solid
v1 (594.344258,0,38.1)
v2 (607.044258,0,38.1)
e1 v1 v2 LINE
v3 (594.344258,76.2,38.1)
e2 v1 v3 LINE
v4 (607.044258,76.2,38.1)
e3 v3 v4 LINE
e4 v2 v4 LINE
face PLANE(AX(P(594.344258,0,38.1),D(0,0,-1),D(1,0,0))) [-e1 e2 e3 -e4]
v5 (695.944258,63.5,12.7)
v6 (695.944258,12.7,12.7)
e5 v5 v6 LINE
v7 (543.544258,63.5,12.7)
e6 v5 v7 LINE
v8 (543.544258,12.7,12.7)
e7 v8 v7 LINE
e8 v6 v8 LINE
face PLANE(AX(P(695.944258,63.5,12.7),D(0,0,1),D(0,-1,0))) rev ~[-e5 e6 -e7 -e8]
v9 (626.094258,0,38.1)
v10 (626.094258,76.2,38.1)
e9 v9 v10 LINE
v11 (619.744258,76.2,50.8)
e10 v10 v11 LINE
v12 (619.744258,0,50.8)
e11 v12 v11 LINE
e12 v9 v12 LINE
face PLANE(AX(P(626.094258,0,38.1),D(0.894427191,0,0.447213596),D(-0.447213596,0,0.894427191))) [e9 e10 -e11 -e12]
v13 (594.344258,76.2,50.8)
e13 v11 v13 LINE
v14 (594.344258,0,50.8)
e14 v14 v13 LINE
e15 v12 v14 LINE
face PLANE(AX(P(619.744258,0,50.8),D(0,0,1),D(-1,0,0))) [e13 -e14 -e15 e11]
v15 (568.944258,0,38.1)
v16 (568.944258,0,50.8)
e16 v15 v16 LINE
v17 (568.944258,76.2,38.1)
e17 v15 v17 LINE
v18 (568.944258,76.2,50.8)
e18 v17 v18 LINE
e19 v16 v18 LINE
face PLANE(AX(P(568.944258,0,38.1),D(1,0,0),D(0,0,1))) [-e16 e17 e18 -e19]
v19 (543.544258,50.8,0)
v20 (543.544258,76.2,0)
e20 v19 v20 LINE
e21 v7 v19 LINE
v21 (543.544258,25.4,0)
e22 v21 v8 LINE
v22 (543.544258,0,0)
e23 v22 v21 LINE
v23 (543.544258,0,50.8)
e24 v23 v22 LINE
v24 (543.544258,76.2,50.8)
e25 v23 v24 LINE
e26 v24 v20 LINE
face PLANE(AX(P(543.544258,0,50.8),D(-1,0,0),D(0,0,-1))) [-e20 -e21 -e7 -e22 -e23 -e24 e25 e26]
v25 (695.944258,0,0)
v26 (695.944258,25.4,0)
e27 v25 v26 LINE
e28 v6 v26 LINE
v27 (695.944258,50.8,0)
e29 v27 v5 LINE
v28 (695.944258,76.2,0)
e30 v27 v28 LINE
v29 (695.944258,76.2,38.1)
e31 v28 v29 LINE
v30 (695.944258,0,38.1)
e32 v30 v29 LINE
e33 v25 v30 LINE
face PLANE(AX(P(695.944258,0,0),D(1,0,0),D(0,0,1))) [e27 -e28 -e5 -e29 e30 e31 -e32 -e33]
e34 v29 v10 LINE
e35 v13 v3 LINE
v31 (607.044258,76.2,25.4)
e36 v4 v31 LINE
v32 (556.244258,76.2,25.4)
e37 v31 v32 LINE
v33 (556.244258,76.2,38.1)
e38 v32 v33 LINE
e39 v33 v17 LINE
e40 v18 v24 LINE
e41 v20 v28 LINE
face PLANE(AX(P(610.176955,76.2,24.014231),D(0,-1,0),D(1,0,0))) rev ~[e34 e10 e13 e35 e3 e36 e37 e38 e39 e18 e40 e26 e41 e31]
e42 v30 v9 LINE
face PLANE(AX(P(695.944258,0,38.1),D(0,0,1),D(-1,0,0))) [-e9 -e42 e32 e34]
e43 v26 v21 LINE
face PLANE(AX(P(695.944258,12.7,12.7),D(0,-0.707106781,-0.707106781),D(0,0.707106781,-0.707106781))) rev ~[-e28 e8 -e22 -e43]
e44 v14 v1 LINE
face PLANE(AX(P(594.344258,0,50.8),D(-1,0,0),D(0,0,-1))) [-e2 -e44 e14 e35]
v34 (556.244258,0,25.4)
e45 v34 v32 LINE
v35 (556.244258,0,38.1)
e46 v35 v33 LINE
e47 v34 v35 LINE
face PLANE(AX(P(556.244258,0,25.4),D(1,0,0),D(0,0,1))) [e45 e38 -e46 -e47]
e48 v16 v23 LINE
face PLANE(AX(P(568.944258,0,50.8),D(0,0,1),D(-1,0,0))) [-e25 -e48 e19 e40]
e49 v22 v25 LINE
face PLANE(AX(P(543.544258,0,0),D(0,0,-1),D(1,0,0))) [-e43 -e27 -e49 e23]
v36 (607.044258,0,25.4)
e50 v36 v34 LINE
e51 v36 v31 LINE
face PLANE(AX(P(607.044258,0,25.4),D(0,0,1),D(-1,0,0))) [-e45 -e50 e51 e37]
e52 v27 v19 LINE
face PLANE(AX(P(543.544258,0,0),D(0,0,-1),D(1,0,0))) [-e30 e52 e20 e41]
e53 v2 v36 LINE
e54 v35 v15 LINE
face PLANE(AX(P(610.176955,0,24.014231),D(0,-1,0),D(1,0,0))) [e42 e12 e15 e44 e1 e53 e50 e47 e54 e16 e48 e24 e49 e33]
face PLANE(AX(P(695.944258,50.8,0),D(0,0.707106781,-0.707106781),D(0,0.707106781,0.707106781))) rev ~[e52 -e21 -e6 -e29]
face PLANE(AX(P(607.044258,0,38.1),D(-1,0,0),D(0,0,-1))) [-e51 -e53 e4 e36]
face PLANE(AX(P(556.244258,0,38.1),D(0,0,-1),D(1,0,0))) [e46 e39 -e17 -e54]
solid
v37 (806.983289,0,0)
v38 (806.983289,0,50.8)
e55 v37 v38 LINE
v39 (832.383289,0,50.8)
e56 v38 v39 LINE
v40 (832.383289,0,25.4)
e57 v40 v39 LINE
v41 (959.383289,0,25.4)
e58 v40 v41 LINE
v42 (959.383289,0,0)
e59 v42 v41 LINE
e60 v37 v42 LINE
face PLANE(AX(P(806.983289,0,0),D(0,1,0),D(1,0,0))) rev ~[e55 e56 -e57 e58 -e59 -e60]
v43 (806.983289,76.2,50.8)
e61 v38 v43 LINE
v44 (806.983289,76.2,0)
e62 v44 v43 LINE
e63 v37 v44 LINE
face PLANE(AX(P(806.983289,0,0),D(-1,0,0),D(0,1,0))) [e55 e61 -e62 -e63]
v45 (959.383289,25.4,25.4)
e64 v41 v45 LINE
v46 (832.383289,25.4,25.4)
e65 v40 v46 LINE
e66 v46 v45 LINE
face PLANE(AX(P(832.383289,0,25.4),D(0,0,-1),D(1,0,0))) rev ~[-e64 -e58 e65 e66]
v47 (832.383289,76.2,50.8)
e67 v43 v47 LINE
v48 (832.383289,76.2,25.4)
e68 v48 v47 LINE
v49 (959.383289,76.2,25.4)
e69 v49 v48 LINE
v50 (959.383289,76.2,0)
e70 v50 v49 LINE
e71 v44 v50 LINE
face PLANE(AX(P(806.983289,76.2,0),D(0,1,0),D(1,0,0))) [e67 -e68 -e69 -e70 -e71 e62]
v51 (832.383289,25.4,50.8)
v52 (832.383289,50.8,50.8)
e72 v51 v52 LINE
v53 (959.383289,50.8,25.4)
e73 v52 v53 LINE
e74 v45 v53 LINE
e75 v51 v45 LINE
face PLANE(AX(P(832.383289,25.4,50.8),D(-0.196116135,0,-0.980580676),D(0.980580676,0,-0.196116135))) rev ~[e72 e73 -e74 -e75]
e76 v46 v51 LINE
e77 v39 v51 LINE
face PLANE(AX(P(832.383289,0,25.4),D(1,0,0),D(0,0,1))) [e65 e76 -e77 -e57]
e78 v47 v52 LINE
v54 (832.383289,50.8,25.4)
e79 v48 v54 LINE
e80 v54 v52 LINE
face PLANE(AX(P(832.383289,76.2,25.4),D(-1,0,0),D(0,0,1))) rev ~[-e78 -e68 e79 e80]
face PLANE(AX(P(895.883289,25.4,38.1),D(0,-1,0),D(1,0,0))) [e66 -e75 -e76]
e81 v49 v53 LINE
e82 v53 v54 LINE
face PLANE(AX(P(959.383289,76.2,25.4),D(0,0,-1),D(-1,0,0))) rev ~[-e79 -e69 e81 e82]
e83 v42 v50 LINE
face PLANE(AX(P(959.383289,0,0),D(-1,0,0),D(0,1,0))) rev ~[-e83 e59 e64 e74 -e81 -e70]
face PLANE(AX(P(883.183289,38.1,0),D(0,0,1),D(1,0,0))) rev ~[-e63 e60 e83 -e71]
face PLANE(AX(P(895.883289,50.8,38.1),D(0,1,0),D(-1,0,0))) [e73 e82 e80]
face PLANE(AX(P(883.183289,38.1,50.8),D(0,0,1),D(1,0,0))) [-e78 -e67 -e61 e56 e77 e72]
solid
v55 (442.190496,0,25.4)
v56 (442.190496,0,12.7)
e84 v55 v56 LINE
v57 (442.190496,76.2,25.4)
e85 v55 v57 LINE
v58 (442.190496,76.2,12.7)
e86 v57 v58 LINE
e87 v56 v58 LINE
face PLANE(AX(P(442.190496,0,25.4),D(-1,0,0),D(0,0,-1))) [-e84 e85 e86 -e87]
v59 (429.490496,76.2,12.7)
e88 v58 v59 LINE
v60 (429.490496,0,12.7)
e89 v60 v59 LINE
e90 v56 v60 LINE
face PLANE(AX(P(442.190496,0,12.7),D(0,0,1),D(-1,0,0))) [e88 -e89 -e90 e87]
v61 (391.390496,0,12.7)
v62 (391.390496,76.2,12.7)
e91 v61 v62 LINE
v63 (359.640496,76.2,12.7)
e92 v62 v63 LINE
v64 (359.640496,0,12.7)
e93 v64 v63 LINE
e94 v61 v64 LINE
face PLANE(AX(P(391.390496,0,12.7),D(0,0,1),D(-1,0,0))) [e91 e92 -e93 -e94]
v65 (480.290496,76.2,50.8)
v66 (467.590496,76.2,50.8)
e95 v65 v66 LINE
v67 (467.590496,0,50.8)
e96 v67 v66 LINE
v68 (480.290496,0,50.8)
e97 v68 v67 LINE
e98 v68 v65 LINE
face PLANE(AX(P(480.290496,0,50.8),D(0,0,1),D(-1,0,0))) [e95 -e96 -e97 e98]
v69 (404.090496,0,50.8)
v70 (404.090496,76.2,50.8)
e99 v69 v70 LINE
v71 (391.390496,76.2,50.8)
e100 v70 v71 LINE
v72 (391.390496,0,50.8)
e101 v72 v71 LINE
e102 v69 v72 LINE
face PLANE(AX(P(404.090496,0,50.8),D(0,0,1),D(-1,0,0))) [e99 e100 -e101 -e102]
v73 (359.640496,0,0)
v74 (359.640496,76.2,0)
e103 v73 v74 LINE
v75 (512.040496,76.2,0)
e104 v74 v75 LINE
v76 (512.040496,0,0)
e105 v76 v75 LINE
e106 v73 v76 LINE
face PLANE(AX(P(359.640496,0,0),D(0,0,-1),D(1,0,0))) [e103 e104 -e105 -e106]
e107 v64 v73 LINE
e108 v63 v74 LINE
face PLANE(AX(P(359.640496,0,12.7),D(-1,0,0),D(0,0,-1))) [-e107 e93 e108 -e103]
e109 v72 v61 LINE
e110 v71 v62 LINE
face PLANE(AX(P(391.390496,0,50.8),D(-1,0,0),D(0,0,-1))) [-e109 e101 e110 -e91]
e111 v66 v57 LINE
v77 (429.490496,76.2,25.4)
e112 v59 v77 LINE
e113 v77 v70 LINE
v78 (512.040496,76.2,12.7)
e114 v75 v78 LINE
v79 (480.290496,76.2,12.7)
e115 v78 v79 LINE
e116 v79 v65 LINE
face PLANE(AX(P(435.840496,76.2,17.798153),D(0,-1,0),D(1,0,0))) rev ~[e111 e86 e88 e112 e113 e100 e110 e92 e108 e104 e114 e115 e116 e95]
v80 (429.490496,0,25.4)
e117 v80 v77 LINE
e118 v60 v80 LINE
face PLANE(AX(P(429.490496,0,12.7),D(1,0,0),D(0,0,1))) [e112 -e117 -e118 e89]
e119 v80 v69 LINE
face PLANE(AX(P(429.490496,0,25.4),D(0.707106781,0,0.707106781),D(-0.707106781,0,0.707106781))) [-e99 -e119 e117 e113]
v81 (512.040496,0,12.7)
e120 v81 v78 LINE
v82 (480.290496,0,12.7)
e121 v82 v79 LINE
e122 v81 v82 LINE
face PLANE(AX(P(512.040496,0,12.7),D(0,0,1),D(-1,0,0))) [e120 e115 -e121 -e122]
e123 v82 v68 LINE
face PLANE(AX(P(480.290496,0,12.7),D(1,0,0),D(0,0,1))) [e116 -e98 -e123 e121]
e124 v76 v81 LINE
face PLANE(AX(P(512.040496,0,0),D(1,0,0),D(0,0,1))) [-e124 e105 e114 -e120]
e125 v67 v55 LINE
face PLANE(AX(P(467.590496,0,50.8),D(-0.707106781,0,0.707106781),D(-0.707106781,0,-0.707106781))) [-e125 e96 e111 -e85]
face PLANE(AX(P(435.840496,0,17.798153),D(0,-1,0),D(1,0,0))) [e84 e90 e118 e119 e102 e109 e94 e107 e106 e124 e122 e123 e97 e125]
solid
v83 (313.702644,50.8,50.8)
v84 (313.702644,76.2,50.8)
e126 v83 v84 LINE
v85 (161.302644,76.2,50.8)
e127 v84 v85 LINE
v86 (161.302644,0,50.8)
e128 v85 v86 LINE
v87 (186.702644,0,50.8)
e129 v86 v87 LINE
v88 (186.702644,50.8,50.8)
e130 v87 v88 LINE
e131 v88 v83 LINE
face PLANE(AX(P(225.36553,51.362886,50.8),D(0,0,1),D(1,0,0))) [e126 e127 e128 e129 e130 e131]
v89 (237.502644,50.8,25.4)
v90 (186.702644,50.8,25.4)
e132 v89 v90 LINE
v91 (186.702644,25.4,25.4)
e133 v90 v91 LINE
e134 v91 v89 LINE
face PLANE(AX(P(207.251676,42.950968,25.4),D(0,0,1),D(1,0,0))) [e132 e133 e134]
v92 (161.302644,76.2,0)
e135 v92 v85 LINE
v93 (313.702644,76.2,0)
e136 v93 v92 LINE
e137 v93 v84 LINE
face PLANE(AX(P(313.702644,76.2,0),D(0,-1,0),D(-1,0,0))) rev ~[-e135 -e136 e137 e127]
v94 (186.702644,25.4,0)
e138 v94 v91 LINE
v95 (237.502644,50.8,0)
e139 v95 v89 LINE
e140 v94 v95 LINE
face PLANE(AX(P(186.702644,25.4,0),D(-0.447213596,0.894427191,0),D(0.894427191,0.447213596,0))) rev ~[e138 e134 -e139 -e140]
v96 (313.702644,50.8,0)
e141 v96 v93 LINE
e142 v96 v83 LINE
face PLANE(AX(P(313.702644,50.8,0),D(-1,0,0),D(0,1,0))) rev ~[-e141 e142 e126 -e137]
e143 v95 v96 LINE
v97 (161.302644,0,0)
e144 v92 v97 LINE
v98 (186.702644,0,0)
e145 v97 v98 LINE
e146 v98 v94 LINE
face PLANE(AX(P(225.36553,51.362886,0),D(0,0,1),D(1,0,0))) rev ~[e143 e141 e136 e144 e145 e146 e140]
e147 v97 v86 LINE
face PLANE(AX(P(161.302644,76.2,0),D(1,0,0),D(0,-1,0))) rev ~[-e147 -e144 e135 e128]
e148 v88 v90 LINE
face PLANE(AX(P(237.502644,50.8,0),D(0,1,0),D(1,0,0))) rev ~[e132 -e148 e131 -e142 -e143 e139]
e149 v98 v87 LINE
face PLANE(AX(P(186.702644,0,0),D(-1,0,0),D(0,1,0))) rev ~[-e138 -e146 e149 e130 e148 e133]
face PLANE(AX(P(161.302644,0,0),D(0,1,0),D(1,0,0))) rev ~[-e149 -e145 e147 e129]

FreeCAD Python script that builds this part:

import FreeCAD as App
import Part
import Sketcher

V = App.Vector
Q = App.Units.Quantity


def add_polygon(sketch, points):
    """Adds a closed chain of lines whose ends are joined by coincident constraints."""
    first, n = sketch.GeometryCount, len(points)
    for a, b in zip(points, points[1:] + points[:1]):
        sketch.addGeometry(Part.LineSegment(App.Vector(*a, 0), App.Vector(*b, 0)), False)
    for i in range(n):
        sketch.addConstraint(Sketcher.Constraint("Coincident", first + i, 2, first + (i + 1) % n, 1))

doc = App.newDocument("Part")
body = doc.addObject("PartDesign::Body", "Body")

# Sketch on XY plane
sketch1 = body.newObject("Sketcher::SketchObject", "Sketch")
sketch1.AttachmentSupport = (doc.getObject("XY_Plane"), [""])
sketch1.MapMode = "FlatFace"
add_polygon(sketch1, [(161, 76), (161, 0), (187, 0), (187, 25), (238, 51), (314, 51), (314, 76)])  # lines 0-6
sketch1.addConstraint([
    Sketcher.Constraint("Vertical", 0),
    Sketcher.Constraint("Horizontal", 1),
    Sketcher.Constraint("Vertical", 2),
    Sketcher.Constraint("Horizontal", 4),
    Sketcher.Constraint("Vertical", 5),
    Sketcher.Constraint("Horizontal", 6),
    Sketcher.Constraint("PointOnObject", 0, 2, -1),
    Sketcher.Constraint("Equal", 4, 0),
    Sketcher.Constraint("Equal", 1, 2),
    Sketcher.Constraint("Equal", 2, 5),
    Sketcher.Constraint("DistanceX", 1, 1, 1, 2, Q("1 in")),
    Sketcher.Constraint("DistanceX", 4, 1, 4, 2, Q("3 in")),
    Sketcher.Constraint("DistanceX", 6, 2, 6, 1, Q("6 in")),
    Sketcher.Constraint("DistanceX", -1, 1, 0, 2, 161.302644),
])
pad1 = body.newObject("PartDesign::Pad", "Pad")
pad1.Profile = sketch1
pad1.Length = Q("2 in")

# Sketch on XY plane
sketch2 = body.newObject("Sketcher::SketchObject", "Sketch001")
sketch2.AttachmentSupport = (doc.getObject("XY_Plane"), [""])
sketch2.MapMode = "FlatFace"
sketch2.AttachmentOffset = App.Placement(V(0, 0, 2 * 25.4), App.Rotation())
add_polygon(sketch2, [(187, 51), (187, 25), (238, 51)])  # lines 0-2
sketch2.addConstraint([
    Sketcher.Constraint("Vertical", 0),
    Sketcher.Constraint("Horizontal", 2),
    Sketcher.Constraint("DistanceX", 2, 2, 2, 1, Q("2 in")),
    Sketcher.Constraint("DistanceY", 0, 2, 0, 1, Q("1 in")),
    Sketcher.Constraint("DistanceY", -1, 1, 0, 2, Q("1 in")),
    Sketcher.Constraint("DistanceX", -1, 1, 0, 2, 186.702644),
])
pocket1 = body.newObject("PartDesign::Pocket", "Pocket")
pocket1.Profile = sketch2
pocket1.Length = Q("1 in")
body2 = doc.addObject("PartDesign::Body", "Body001")

# Sketch on XZ plane
sketch3 = body2.newObject("Sketcher::SketchObject", "Sketch002")
sketch3.AttachmentSupport = (doc.getObject("XZ_Plane001"), [""])
sketch3.MapMode = "FlatFace"
add_polygon(sketch3, [(360, 13), (360, 0), (512, 0), (512, 13), (480, 13), (480, 51), (468, 51), (442, 25), (442, 13), (429, 13), (429, 25), (404, 51), (391, 51), (391, 13)])  # lines 0-13
sketch3.addConstraint([
    Sketcher.Constraint("Vertical", 0),
    Sketcher.Constraint("Horizontal", 1),
    Sketcher.Constraint("Vertical", 2),
    Sketcher.Constraint("Horizontal", 3),
    Sketcher.Constraint("Vertical", 4),
    Sketcher.Constraint("Horizontal", 5),
    Sketcher.Constraint("Vertical", 7),
    Sketcher.Constraint("Horizontal", 8),
    Sketcher.Constraint("Vertical", 9),
    Sketcher.Constraint("Horizontal", 11),
    Sketcher.Constraint("Vertical", 12),
    Sketcher.Constraint("Horizontal", 13),
    Sketcher.Constraint("PointOnObject", 0, 2, -1),
    Sketcher.Constraint("Perpendicular", 6, 10),
    Sketcher.Constraint("Horizontal", 3, 2, 7, 2),
    Sketcher.Constraint("Horizontal", 6, 2, 9, 2),
    Sketcher.Constraint("Horizontal", 5, 2, 10, 2),
    Sketcher.Constraint("Horizontal", 8, 2, 12, 2),
    Sketcher.Constraint("Equal", 5, 8),
    Sketcher.Constraint("Equal", 8, 11),
    Sketcher.Constraint("Equal", 3, 13),
    Sketcher.Constraint("Equal", 11, 0),
    Sketcher.Constraint("Equal", 2, 7),
    Sketcher.Constraint("Equal", 6, 10),
    Sketcher.Constraint("DistanceX", 1, 1, 1, 2, Q("6 in")),
    Sketcher.Constraint("DistanceX", 5, 2, 5, 1, Q("0.5 in")),
    Sketcher.Constraint("DistanceY", 4, 1, 4, 2, Q("1.5 in")),
    Sketcher.Constraint("DistanceX", -1, 1, 0, 2, 359.640496),
])
pad2 = body2.newObject("PartDesign::Pad", "Pad001")
pad2.Profile = sketch3
pad2.Length = Q("3 in")
pad2.Reversed = True
body3 = doc.addObject("PartDesign::Body", "Body002")

# Sketch on XZ plane
sketch4 = body3.newObject("Sketcher::SketchObject", "Sketch003")
sketch4.AttachmentSupport = (doc.getObject("XZ_Plane002"), [""])
sketch4.MapMode = "FlatFace"
add_polygon(sketch4, [(544, 51), (544, 0), (696, 0), (696, 38), (626, 38), (620, 51), (594, 51), (594, 38), (607, 38), (607, 25), (556, 25), (556, 38), (569, 38), (569, 51)])  # lines 0-13
sketch4.addConstraint([
    Sketcher.Constraint("Vertical", 0),
    Sketcher.Constraint("Horizontal", 1),
    Sketcher.Constraint("Vertical", 2),
    Sketcher.Constraint("Horizontal", 3),
    Sketcher.Constraint("Horizontal", 5),
    Sketcher.Constraint("Vertical", 6),
    Sketcher.Constraint("Horizontal", 7),
    Sketcher.Constraint("Vertical", 8),
    Sketcher.Constraint("Horizontal", 9),
    Sketcher.Constraint("Vertical", 10),
    Sketcher.Constraint("Horizontal", 11),
    Sketcher.Constraint("Vertical", 12),
    Sketcher.Constraint("Horizontal", 13),
    Sketcher.Constraint("PointOnObject", 0, 2, -1),
    Sketcher.Constraint("Horizontal", 3, 2, 6, 2),
    Sketcher.Constraint("Horizontal", 7, 2, 10, 2),
    Sketcher.Constraint("Horizontal", 5, 2, 12, 2),
    Sketcher.Constraint("Equal", 7, 11),
    Sketcher.Constraint("Equal", 5, 13),
    Sketcher.Constraint("Equal", 9, 0),
    Sketcher.Constraint("Equal", 11, 6),
    Sketcher.Constraint("Equal", 6, 8),
    Sketcher.Constraint("DistanceX", 1, 1, 1, 2, Q("6 in")),
    Sketcher.Constraint("DistanceX", 5, 2, 5, 1, Q("1 in")),
    Sketcher.Constraint("DistanceX", 9, 2, 9, 1, Q("2 in")),
    Sketcher.Constraint("DistanceX", 7, 1, 7, 2, Q("0.5 in")),
    Sketcher.Constraint("DistanceX", 3, 2, 3, 1, Q("2.75 in")),
    Sketcher.Constraint("DistanceX", -1, 1, 0, 2, 543.544258),
])
pad3 = body3.newObject("PartDesign::Pad", "Pad002")
pad3.Profile = sketch4
pad3.Length = Q("3 in")
pad3.Reversed = True

# Sketch on YZ plane
sketch5 = body3.newObject("Sketcher::SketchObject", "Sketch004")
sketch5.AttachmentSupport = (doc.getObject("YZ_Plane002"), [""])
sketch5.MapMode = "FlatFace"
sketch5.AttachmentOffset = App.Placement(V(0, 0, 695.944258), App.Rotation())
add_polygon(sketch5, [(64, 13), (13, 13), (25, 0), (51, 0)])  # lines 0-3
sketch5.addConstraint([
    Sketcher.Constraint("Horizontal", 0),
    Sketcher.Constraint("Horizontal", 2),
    Sketcher.Constraint("PointOnObject", 1, 2, -1),
    Sketcher.Constraint("Perpendicular", 1, 3),
    Sketcher.Constraint("Equal", 1, 3),
    Sketcher.Constraint("DistanceX", 0, 2, 0, 1, Q("2 in")),
    Sketcher.Constraint("DistanceX", 2, 1, 2, 2, Q("1 in")),
    Sketcher.Constraint("DistanceX", -1, 1, 1, 2, Q("1 in")),
])
pocket2 = body3.newObject("PartDesign::Pocket", "Pocket001")
pocket2.Profile = sketch5
pocket2.Length = Q("6.59 in")
body4 = doc.addObject("PartDesign::Body", "Body003")

# Sketch on XY plane
sketch6 = body4.newObject("Sketcher::SketchObject", "Sketch005")
sketch6.AttachmentSupport = (doc.getObject("XY_Plane003"), [""])
sketch6.MapMode = "FlatFace"
add_polygon(sketch6, [(807, 76), (807, 0), (959, 0), (959, 76)])  # lines 0-3
sketch6.addConstraint([
    Sketcher.Constraint("Vertical", 0),
    Sketcher.Constraint("Horizontal", 1),
    Sketcher.Constraint("Vertical", 2),
    Sketcher.Constraint("Horizontal", 3),
    Sketcher.Constraint("PointOnObject", 0, 2, -1),
    Sketcher.Constraint("DistanceX", 1, 1, 1, 2, Q("6 in")),
    Sketcher.Constraint("DistanceY", 0, 2, 0, 1, Q("3 in")),
    Sketcher.Constraint("DistanceX", -1, 1, 0, 2, 806.983289),
])
pad4 = body4.newObject("PartDesign::Pad", "Pad003")
pad4.Profile = sketch6
pad4.Length = Q("2 in")

# Sketch on XZ plane
sketch7 = body4.newObject("Sketcher::SketchObject", "Sketch006")
sketch7.AttachmentSupport = (doc.getObject("XZ_Plane003"), [""])
sketch7.MapMode = "FlatFace"
add_polygon(sketch7, [(832, 51), (832, 25), (959, 25), (959, 51)])  # lines 0-3
sketch7.addConstraint([
    Sketcher.Constraint("Vertical", 0),
    Sketcher.Constraint("Horizontal", 1),
    Sketcher.Constraint("Vertical", 2),
    Sketcher.Constraint("Horizontal", 3),
    Sketcher.Constraint("DistanceX", 1, 1, 1, 2, Q("5 in")),
    Sketcher.Constraint("DistanceY", 0, 2, 0, 1, Q("1 in")),
    Sketcher.Constraint("DistanceY", -1, 1, 0, 2, Q("1 in")),
    Sketcher.Constraint("DistanceX", -1, 1, 0, 2, 832.383289),
])
pocket3 = body4.newObject("PartDesign::Pocket", "Pocket002")
pocket3.Profile = sketch7
pocket3.Length = Q("1 in")

# Sketch on XZ plane
sketch8 = body4.newObject("Sketcher::SketchObject", "Sketch007")
sketch8.AttachmentSupport = (doc.getObject("XZ_Plane003"), [""])
sketch8.MapMode = "FlatFace"
sketch8.AttachmentOffset = App.Placement(V(0, 0, -3 * 25.4), App.Rotation())
add_polygon(sketch8, [(959, 51), (959, 25), (832, 25), (832, 51)])  # lines 0-3
sketch8.addConstraint([
    Sketcher.Constraint("Vertical", 0),
    Sketcher.Constraint("Horizontal", 1),
    Sketcher.Constraint("Vertical", 2),
    Sketcher.Constraint("Horizontal", 3),
    Sketcher.Constraint("DistanceX", 1, 2, 1, 1, Q("5 in")),
    Sketcher.Constraint("DistanceY", 0, 2, 0, 1, Q("1 in")),
    Sketcher.Constraint("DistanceY", -1, 1, 0, 2, Q("1 in")),
    Sketcher.Constraint("DistanceX", -1, 1, 0, 2, 959.383289),
])
pocket4 = body4.newObject("PartDesign::Pocket", "Pocket003")
pocket4.Profile = sketch8
pocket4.Length = Q("1 in")
pocket4.Reversed = True

# Sketch on XZ plane
sketch9 = body4.newObject("Sketcher::SketchObject", "Sketch008")
sketch9.AttachmentSupport = (doc.getObject("XZ_Plane003"), [""])
sketch9.MapMode = "FlatFace"
sketch9.AttachmentOffset = App.Placement(V(0, 0, -1 * 25.4), App.Rotation())
add_polygon(sketch9, [(959, 51), (832, 51), (959, 25)])  # lines 0-2
sketch9.addConstraint([
    Sketcher.Constraint("Horizontal", 0),
    Sketcher.Constraint("Vertical", 2),
    Sketcher.Constraint("DistanceX", 0, 2, 0, 1, Q("5 in")),
    Sketcher.Constraint("DistanceY", 2, 1, 2, 2, Q("1 in")),
    Sketcher.Constraint("DistanceY", -1, 1, 0, 2, Q("2 in")),
    Sketcher.Constraint("DistanceX", -1, 1, 0, 2, 832.383289),
])
pocket5 = body4.newObject("PartDesign::Pocket", "Pocket004")
pocket5.Profile = sketch9
pocket5.Length = Q("1 in")

doc.recompute()
